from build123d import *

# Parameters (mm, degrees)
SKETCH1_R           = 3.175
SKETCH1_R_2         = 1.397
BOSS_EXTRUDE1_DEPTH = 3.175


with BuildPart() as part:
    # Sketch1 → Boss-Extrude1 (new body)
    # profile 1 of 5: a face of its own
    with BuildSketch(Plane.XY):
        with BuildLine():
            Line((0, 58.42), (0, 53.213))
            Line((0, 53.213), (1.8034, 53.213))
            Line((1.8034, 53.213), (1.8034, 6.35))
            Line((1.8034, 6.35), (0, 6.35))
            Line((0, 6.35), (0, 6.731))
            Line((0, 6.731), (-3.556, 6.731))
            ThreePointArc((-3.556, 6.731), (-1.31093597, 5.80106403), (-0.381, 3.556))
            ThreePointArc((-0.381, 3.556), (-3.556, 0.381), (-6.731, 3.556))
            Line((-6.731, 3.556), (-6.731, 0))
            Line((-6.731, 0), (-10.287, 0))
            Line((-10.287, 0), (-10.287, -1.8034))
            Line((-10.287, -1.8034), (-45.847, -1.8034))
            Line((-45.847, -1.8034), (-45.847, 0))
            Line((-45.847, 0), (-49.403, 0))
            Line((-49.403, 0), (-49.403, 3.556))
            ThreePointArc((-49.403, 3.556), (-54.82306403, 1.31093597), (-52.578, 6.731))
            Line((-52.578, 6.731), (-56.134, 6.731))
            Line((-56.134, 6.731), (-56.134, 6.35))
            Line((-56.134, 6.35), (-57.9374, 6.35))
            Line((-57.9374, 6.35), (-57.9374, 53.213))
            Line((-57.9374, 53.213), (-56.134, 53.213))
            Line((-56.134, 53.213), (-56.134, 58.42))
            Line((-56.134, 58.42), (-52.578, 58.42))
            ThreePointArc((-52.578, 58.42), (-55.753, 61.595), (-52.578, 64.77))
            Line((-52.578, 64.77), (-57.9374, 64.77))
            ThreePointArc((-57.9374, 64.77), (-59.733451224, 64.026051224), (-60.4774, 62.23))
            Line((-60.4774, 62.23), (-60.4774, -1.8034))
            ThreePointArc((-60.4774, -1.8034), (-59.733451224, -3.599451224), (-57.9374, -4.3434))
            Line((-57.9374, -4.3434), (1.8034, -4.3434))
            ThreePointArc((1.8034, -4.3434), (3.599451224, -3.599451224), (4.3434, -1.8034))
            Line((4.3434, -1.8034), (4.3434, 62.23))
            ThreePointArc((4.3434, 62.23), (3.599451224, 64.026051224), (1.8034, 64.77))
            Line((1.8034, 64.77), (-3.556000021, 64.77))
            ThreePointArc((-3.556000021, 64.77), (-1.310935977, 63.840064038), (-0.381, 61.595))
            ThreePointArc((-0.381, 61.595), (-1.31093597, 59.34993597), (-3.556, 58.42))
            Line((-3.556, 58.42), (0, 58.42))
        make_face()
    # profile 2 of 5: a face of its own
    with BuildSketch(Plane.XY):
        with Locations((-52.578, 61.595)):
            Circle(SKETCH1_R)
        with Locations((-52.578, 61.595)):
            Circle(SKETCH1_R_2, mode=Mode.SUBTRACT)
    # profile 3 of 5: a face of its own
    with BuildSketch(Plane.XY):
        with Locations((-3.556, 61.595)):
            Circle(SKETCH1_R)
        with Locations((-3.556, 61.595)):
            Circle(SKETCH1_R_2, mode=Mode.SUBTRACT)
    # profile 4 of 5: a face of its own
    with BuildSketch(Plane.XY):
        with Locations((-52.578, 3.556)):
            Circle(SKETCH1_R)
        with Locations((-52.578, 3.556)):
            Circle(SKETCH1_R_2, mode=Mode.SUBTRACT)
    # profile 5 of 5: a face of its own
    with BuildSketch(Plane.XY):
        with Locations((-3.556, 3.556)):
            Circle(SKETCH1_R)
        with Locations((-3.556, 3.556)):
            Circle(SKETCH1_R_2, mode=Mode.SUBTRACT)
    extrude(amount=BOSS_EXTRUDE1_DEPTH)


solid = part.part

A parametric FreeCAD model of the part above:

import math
import FreeCAD as App
import Part
import Sketcher
Q = App.Units.Quantity

doc = App.newDocument("Part")
body = doc.addObject("PartDesign::Body", "Body")

# Sketch on XY plane
sketch1 = body.newObject("Sketcher::SketchObject", "Sketch")
sketch1.AttachmentSupport = (doc.getObject("XY_Plane"), [""])
sketch1.MapMode = "FlatFace"
sketch1.addGeometry(Part.LineSegment(App.Vector(0, 58.42, 0), App.Vector(0, 53.21, 0)), False)
sketch1.addGeometry(Part.LineSegment(App.Vector(0, 53.21, 0), App.Vector(1.8, 53.21, 0)), False)
sketch1.addGeometry(Part.LineSegment(App.Vector(1.8, 53.21, 0), App.Vector(1.8, 6.35, 0)), False)
sketch1.addGeometry(Part.LineSegment(App.Vector(1.8, 6.35, 0), App.Vector(0, 6.35, 0)), False)
sketch1.addGeometry(Part.LineSegment(App.Vector(0, 6.35, 0), App.Vector(0, 6.73, 0)), False)
sketch1.addGeometry(Part.LineSegment(App.Vector(0, 6.73, 0), App.Vector(-3.56, 6.73, 0)), False)
sketch1.addGeometry(Part.ArcOfCircle(Part.Circle(App.Vector(-3.56, 3.56, 0), App.Vector(0, 0, 1), 3.17), math.radians(90), math.radians(180)), False)
sketch1.addGeometry(Part.LineSegment(App.Vector(-6.73, 3.56, 0), App.Vector(-6.73, 0, 0)), False)
sketch1.addGeometry(Part.LineSegment(App.Vector(-6.73, 0, 0), App.Vector(-10.29, 0, 0)), False)
sketch1.addGeometry(Part.LineSegment(App.Vector(-10.29, 0, 0), App.Vector(-10.29, -1.8, 0)), False)
sketch1.addGeometry(Part.LineSegment(App.Vector(-10.29, -1.8, 0), App.Vector(-45.85, -1.8, 0)), False)
sketch1.addGeometry(Part.LineSegment(App.Vector(-45.85, -1.8, 0), App.Vector(-45.85, 0, 0)), False)
sketch1.addGeometry(Part.LineSegment(App.Vector(-45.85, 0, 0), App.Vector(-49.4, 0, 0)), False)
sketch1.addGeometry(Part.LineSegment(App.Vector(-49.4, 0, 0), App.Vector(-49.4, 3.56, 0)), False)
sketch1.addGeometry(Part.ArcOfCircle(Part.Circle(App.Vector(-52.58, 3.56, 0), App.Vector(0, 0, 1), 3.17), math.radians(0), math.radians(90)), False)
sketch1.addGeometry(Part.LineSegment(App.Vector(-52.58, 6.73, 0), App.Vector(-56.13, 6.73, 0)), False)
sketch1.addGeometry(Part.LineSegment(App.Vector(-56.13, 6.73, 0), App.Vector(-56.13, 6.35, 0)), False)
sketch1.addGeometry(Part.LineSegment(App.Vector(-56.13, 6.35, 0), App.Vector(-57.94, 6.35, 0)), False)
sketch1.addGeometry(Part.LineSegment(App.Vector(-57.94, 6.35, 0), App.Vector(-57.94, 53.21, 0)), False)
sketch1.addGeometry(Part.LineSegment(App.Vector(-57.94, 53.21, 0), App.Vector(-56.13, 53.21, 0)), False)
sketch1.addGeometry(Part.LineSegment(App.Vector(-56.13, 53.21, 0), App.Vector(-56.13, 58.42, 0)), False)
sketch1.addGeometry(Part.LineSegment(App.Vector(-56.13, 58.42, 0), App.Vector(-52.58, 58.42, 0)), False)
sketch1.addGeometry(Part.ArcOfCircle(Part.Circle(App.Vector(-52.58, 61.59, 0), App.Vector(0, 0, 1), 3.17), math.radians(-90), math.radians(90)), False)
sketch1.addGeometry(Part.LineSegment(App.Vector(-52.58, 64.77, 0), App.Vector(-57.94, 64.77, 0)), False)
sketch1.addGeometry(Part.ArcOfCircle(Part.Circle(App.Vector(-57.94, 62.23, 0), App.Vector(0, 0, 1), 2.54), math.radians(90), math.radians(180)), False)
sketch1.addGeometry(Part.LineSegment(App.Vector(-60.48, 62.23, 0), App.Vector(-60.48, -1.8, 0)), False)
sketch1.addGeometry(Part.ArcOfCircle(Part.Circle(App.Vector(-57.94, -1.8, 0), App.Vector(0, 0, 1), 2.54), math.radians(-180), math.radians(-90)), False)
sketch1.addGeometry(Part.LineSegment(App.Vector(-57.94, -4.34, 0), App.Vector(1.8, -4.34, 0)), False)
sketch1.addGeometry(Part.ArcOfCircle(Part.Circle(App.Vector(1.8, -1.8, 0), App.Vector(0, 0, 1), 2.54), math.radians(-90), math.radians(0)), False)
sketch1.addGeometry(Part.LineSegment(App.Vector(4.34, -1.8, 0), App.Vector(4.34, 62.23, 0)), False)
sketch1.addGeometry(Part.ArcOfCircle(Part.Circle(App.Vector(1.8, 62.23, 0), App.Vector(0, 0, 1), 2.54), math.radians(0), math.radians(90)), False)
sketch1.addGeometry(Part.LineSegment(App.Vector(1.8, 64.77, 0), App.Vector(-3.56, 64.77, 0)), False)
sketch1.addGeometry(Part.ArcOfCircle(Part.Circle(App.Vector(-3.56, 61.59, 0), App.Vector(0, 0, 1), 3.17), math.radians(90), math.radians(270)), False)
sketch1.addGeometry(Part.LineSegment(App.Vector(-3.56, 58.42, 0), App.Vector(0, 58.42, 0)), False)
sketch1.addGeometry(Part.Circle(App.Vector(-3.56, 3.56, 0), App.Vector(0, 0, 1), 1.4), False)
sketch1.addGeometry(Part.Circle(App.Vector(-52.58, 3.56, 0), App.Vector(0, 0, 1), 1.4), False)
sketch1.addGeometry(Part.Circle(App.Vector(-52.58, 61.59, 0), App.Vector(0, 0, 1), 1.4), False)
sketch1.addGeometry(Part.Circle(App.Vector(-3.56, 61.59, 0), App.Vector(0, 0, 1), 1.4), False)
sketch1.addConstraint(Sketcher.Constraint("Coincident", 0, 2, 1, 1))
sketch1.addConstraint(Sketcher.Constraint("Coincident", 1, 2, 2, 1))
sketch1.addConstraint(Sketcher.Constraint("Coincident", 2, 2, 3, 1))
sketch1.addConstraint(Sketcher.Constraint("Coincident", 3, 2, 4, 1))
sketch1.addConstraint(Sketcher.Constraint("Coincident", 4, 2, 5, 1))
sketch1.addConstraint(Sketcher.Constraint("Tangent", 5, 2, 6, 1))
sketch1.addConstraint(Sketcher.Constraint("Tangent", 6, 2, 7, 1))
sketch1.addConstraint(Sketcher.Constraint("Coincident", 7, 2, 8, 1))
sketch1.addConstraint(Sketcher.Constraint("Coincident", 8, 2, 9, 1))
sketch1.addConstraint(Sketcher.Constraint("Coincident", 9, 2, 10, 1))
sketch1.addConstraint(Sketcher.Constraint("Coincident", 10, 2, 11, 1))
sketch1.addConstraint(Sketcher.Constraint("Coincident", 11, 2, 12, 1))
sketch1.addConstraint(Sketcher.Constraint("Coincident", 12, 2, 13, 1))
sketch1.addConstraint(Sketcher.Constraint("Tangent", 13, 2, 14, 1))
sketch1.addConstraint(Sketcher.Constraint("Tangent", 14, 2, 15, 1))
sketch1.addConstraint(Sketcher.Constraint("Coincident", 15, 2, 16, 1))
sketch1.addConstraint(Sketcher.Constraint("Coincident", 16, 2, 17, 1))
sketch1.addConstraint(Sketcher.Constraint("Coincident", 17, 2, 18, 1))
sketch1.addConstraint(Sketcher.Constraint("Coincident", 18, 2, 19, 1))
sketch1.addConstraint(Sketcher.Constraint("Coincident", 19, 2, 20, 1))
sketch1.addConstraint(Sketcher.Constraint("Coincident", 20, 2, 21, 1))
sketch1.addConstraint(Sketcher.Constraint("Tangent", 21, 2, 22, 1))
sketch1.addConstraint(Sketcher.Constraint("Tangent", 22, 2, 23, 1))
sketch1.addConstraint(Sketcher.Constraint("Tangent", 23, 2, 24, 1))
sketch1.addConstraint(Sketcher.Constraint("Tangent", 24, 2, 25, 1))
sketch1.addConstraint(Sketcher.Constraint("Tangent", 25, 2, 26, 1))
sketch1.addConstraint(Sketcher.Constraint("Tangent", 26, 2, 27, 1))
sketch1.addConstraint(Sketcher.Constraint("Tangent", 27, 2, 28, 1))
sketch1.addConstraint(Sketcher.Constraint("Tangent", 28, 2, 29, 1))
sketch1.addConstraint(Sketcher.Constraint("Tangent", 29, 2, 30, 1))
sketch1.addConstraint(Sketcher.Constraint("Tangent", 30, 2, 31, 1))
sketch1.addConstraint(Sketcher.Constraint("Tangent", 31, 2, 32, 1))
sketch1.addConstraint(Sketcher.Constraint("Tangent", 32, 2, 33, 1))
sketch1.addConstraint(Sketcher.Constraint("Coincident", 33, 2, 0, 1))
sketch1.addConstraint(Sketcher.Constraint("Vertical", 0))
sketch1.addConstraint(Sketcher.Constraint("Horizontal", 1))
sketch1.addConstraint(Sketcher.Constraint("Vertical", 2))
sketch1.addConstraint(Sketcher.Constraint("Horizontal", 3))
sketch1.addConstraint(Sketcher.Constraint("Vertical", 4))
sketch1.addConstraint(Sketcher.Constraint("Horizontal", 5))
sketch1.addConstraint(Sketcher.Constraint("Vertical", 7))
sketch1.addConstraint(Sketcher.Constraint("Horizontal", 8))
sketch1.addConstraint(Sketcher.Constraint("Vertical", 9))
sketch1.addConstraint(Sketcher.Constraint("Horizontal", 10))
sketch1.addConstraint(Sketcher.Constraint("Vertical", 11))
sketch1.addConstraint(Sketcher.Constraint("Horizontal", 12))
sketch1.addConstraint(Sketcher.Constraint("Vertical", 13))
sketch1.addConstraint(Sketcher.Constraint("Horizontal", 15))
sketch1.addConstraint(Sketcher.Constraint("Vertical", 16))
sketch1.addConstraint(Sketcher.Constraint("Horizontal", 17))
sketch1.addConstraint(Sketcher.Constraint("Vertical", 18))
sketch1.addConstraint(Sketcher.Constraint("Horizontal", 19))
sketch1.addConstraint(Sketcher.Constraint("Vertical", 20))
sketch1.addConstraint(Sketcher.Constraint("Horizontal", 21))
sketch1.addConstraint(Sketcher.Constraint("Horizontal", 23))
sketch1.addConstraint(Sketcher.Constraint("Vertical", 25))
sketch1.addConstraint(Sketcher.Constraint("Horizontal", 27))
sketch1.addConstraint(Sketcher.Constraint("Vertical", 29))
sketch1.addConstraint(Sketcher.Constraint("Horizontal", 31))
sketch1.addConstraint(Sketcher.Constraint("Horizontal", 33))
sketch1.addConstraint(Sketcher.Constraint("Coincident", 34, 3, 6, 3))
sketch1.addConstraint(Sketcher.Constraint("Coincident", 35, 3, 14, 3))
sketch1.addConstraint(Sketcher.Constraint("Coincident", 36, 3, 22, 3))
sketch1.addConstraint(Sketcher.Constraint("Coincident", 37, 3, 32, 3))
sketch1.addConstraint(Sketcher.Constraint("Equal", 6, 14))
sketch1.addConstraint(Sketcher.Constraint("Equal", 14, 22))
sketch1.addConstraint(Sketcher.Constraint("Equal", 24, 26))
sketch1.addConstraint(Sketcher.Constraint("Equal", 26, 28))
sketch1.addConstraint(Sketcher.Constraint("Equal", 28, 30))
sketch1.addConstraint(Sketcher.Constraint("Equal", 22, 32))
sketch1.addConstraint(Sketcher.Constraint("Equal", 34, 35))
sketch1.addConstraint(Sketcher.Constraint("Equal", 35, 36))
sketch1.addConstraint(Sketcher.Constraint("Equal", 36, 37))
sketch1.addConstraint(Sketcher.Constraint("PointOnObject", 0, 2, -2))
sketch1.addConstraint(Sketcher.Constraint("PointOnObject", 3, 2, -2))
sketch1.addConstraint(Sketcher.Constraint("PointOnObject", 7, 2, -1))
sketch1.addConstraint(Sketcher.Constraint("PointOnObject", 11, 2, -1))
sketch1.addConstraint(Sketcher.Constraint("Horizontal", 6, 3, 14, 3))
sketch1.addConstraint(Sketcher.Constraint("Horizontal", 24, 3, 30, 3))
sketch1.addConstraint(Sketcher.Constraint("Horizontal", 28, 3, 9, 2))
sketch1.addConstraint(Sketcher.Constraint("Horizontal", 3, 2, 16, 2))
sketch1.addConstraint(Sketcher.Constraint("Horizontal", 1, 2, 18, 2))
sketch1.addConstraint(Sketcher.Constraint("Vertical", 14, 3, 22, 3))
sketch1.addConstraint(Sketcher.Constraint("Vertical", 6, 3, 32, 3))
sketch1.addConstraint(Sketcher.Constraint("Vertical", 30, 3, 1, 2))
sketch1.addConstraint(Sketcher.Constraint("Vertical", 26, 3, 17, 2))
sketch1.addConstraint(Sketcher.Constraint("Vertical", 16, 2, 19, 2))
sketch1.addConstraint(Sketcher.Constraint("Equal", 5, 8))
sketch1.addConstraint(Sketcher.Constraint("Equal", 8, 12))
sketch1.addConstraint(Sketcher.Constraint("Equal", 12, 15))
sketch1.addConstraint(Sketcher.Constraint("Equal", 3, 17))
sketch1.addConstraint(Sketcher.Constraint("Equal", 33, 7))
sketch1.addConstraint(Sketcher.Constraint("Equal", 19, 9))
sketch1.addConstraint(Sketcher.Constraint("Radius", 24, Q("0.1 in")))
sketch1.addConstraint(Sketcher.Constraint("Diameter", 34, Q("0.11 in")))
sketch1.addConstraint(Sketcher.Constraint("DistanceX", 10, 2, 10, 1, Q("1.4 in")))
sketch1.addConstraint(Sketcher.Constraint("Radius", 6, Q("0.125 in")))
sketch1.addConstraint(Sketcher.Constraint("DistanceX", 5, 2, 5, 1, Q("0.14 in")))
sketch1.addConstraint(Sketcher.Constraint("DistanceY", -1, 1, 20, 2, Q("2.3 in")))
sketch1.addConstraint(Sketcher.Constraint("DistanceX", 1, 1, 1, 2, Q("0.071 in")))
sketch1.addConstraint(Sketcher.Constraint("DistanceY", 0, 2, 0, 1, Q("0.205 in")))
sketch1.addConstraint(Sketcher.Constraint("DistanceY", 2, 2, 2, 1, Q("1.845 in")))
pad1 = body.newObject("PartDesign::Pad", "Pad")
pad1.Profile = sketch1
pad1.Length = Q("0.125 in")

doc.recompute()
